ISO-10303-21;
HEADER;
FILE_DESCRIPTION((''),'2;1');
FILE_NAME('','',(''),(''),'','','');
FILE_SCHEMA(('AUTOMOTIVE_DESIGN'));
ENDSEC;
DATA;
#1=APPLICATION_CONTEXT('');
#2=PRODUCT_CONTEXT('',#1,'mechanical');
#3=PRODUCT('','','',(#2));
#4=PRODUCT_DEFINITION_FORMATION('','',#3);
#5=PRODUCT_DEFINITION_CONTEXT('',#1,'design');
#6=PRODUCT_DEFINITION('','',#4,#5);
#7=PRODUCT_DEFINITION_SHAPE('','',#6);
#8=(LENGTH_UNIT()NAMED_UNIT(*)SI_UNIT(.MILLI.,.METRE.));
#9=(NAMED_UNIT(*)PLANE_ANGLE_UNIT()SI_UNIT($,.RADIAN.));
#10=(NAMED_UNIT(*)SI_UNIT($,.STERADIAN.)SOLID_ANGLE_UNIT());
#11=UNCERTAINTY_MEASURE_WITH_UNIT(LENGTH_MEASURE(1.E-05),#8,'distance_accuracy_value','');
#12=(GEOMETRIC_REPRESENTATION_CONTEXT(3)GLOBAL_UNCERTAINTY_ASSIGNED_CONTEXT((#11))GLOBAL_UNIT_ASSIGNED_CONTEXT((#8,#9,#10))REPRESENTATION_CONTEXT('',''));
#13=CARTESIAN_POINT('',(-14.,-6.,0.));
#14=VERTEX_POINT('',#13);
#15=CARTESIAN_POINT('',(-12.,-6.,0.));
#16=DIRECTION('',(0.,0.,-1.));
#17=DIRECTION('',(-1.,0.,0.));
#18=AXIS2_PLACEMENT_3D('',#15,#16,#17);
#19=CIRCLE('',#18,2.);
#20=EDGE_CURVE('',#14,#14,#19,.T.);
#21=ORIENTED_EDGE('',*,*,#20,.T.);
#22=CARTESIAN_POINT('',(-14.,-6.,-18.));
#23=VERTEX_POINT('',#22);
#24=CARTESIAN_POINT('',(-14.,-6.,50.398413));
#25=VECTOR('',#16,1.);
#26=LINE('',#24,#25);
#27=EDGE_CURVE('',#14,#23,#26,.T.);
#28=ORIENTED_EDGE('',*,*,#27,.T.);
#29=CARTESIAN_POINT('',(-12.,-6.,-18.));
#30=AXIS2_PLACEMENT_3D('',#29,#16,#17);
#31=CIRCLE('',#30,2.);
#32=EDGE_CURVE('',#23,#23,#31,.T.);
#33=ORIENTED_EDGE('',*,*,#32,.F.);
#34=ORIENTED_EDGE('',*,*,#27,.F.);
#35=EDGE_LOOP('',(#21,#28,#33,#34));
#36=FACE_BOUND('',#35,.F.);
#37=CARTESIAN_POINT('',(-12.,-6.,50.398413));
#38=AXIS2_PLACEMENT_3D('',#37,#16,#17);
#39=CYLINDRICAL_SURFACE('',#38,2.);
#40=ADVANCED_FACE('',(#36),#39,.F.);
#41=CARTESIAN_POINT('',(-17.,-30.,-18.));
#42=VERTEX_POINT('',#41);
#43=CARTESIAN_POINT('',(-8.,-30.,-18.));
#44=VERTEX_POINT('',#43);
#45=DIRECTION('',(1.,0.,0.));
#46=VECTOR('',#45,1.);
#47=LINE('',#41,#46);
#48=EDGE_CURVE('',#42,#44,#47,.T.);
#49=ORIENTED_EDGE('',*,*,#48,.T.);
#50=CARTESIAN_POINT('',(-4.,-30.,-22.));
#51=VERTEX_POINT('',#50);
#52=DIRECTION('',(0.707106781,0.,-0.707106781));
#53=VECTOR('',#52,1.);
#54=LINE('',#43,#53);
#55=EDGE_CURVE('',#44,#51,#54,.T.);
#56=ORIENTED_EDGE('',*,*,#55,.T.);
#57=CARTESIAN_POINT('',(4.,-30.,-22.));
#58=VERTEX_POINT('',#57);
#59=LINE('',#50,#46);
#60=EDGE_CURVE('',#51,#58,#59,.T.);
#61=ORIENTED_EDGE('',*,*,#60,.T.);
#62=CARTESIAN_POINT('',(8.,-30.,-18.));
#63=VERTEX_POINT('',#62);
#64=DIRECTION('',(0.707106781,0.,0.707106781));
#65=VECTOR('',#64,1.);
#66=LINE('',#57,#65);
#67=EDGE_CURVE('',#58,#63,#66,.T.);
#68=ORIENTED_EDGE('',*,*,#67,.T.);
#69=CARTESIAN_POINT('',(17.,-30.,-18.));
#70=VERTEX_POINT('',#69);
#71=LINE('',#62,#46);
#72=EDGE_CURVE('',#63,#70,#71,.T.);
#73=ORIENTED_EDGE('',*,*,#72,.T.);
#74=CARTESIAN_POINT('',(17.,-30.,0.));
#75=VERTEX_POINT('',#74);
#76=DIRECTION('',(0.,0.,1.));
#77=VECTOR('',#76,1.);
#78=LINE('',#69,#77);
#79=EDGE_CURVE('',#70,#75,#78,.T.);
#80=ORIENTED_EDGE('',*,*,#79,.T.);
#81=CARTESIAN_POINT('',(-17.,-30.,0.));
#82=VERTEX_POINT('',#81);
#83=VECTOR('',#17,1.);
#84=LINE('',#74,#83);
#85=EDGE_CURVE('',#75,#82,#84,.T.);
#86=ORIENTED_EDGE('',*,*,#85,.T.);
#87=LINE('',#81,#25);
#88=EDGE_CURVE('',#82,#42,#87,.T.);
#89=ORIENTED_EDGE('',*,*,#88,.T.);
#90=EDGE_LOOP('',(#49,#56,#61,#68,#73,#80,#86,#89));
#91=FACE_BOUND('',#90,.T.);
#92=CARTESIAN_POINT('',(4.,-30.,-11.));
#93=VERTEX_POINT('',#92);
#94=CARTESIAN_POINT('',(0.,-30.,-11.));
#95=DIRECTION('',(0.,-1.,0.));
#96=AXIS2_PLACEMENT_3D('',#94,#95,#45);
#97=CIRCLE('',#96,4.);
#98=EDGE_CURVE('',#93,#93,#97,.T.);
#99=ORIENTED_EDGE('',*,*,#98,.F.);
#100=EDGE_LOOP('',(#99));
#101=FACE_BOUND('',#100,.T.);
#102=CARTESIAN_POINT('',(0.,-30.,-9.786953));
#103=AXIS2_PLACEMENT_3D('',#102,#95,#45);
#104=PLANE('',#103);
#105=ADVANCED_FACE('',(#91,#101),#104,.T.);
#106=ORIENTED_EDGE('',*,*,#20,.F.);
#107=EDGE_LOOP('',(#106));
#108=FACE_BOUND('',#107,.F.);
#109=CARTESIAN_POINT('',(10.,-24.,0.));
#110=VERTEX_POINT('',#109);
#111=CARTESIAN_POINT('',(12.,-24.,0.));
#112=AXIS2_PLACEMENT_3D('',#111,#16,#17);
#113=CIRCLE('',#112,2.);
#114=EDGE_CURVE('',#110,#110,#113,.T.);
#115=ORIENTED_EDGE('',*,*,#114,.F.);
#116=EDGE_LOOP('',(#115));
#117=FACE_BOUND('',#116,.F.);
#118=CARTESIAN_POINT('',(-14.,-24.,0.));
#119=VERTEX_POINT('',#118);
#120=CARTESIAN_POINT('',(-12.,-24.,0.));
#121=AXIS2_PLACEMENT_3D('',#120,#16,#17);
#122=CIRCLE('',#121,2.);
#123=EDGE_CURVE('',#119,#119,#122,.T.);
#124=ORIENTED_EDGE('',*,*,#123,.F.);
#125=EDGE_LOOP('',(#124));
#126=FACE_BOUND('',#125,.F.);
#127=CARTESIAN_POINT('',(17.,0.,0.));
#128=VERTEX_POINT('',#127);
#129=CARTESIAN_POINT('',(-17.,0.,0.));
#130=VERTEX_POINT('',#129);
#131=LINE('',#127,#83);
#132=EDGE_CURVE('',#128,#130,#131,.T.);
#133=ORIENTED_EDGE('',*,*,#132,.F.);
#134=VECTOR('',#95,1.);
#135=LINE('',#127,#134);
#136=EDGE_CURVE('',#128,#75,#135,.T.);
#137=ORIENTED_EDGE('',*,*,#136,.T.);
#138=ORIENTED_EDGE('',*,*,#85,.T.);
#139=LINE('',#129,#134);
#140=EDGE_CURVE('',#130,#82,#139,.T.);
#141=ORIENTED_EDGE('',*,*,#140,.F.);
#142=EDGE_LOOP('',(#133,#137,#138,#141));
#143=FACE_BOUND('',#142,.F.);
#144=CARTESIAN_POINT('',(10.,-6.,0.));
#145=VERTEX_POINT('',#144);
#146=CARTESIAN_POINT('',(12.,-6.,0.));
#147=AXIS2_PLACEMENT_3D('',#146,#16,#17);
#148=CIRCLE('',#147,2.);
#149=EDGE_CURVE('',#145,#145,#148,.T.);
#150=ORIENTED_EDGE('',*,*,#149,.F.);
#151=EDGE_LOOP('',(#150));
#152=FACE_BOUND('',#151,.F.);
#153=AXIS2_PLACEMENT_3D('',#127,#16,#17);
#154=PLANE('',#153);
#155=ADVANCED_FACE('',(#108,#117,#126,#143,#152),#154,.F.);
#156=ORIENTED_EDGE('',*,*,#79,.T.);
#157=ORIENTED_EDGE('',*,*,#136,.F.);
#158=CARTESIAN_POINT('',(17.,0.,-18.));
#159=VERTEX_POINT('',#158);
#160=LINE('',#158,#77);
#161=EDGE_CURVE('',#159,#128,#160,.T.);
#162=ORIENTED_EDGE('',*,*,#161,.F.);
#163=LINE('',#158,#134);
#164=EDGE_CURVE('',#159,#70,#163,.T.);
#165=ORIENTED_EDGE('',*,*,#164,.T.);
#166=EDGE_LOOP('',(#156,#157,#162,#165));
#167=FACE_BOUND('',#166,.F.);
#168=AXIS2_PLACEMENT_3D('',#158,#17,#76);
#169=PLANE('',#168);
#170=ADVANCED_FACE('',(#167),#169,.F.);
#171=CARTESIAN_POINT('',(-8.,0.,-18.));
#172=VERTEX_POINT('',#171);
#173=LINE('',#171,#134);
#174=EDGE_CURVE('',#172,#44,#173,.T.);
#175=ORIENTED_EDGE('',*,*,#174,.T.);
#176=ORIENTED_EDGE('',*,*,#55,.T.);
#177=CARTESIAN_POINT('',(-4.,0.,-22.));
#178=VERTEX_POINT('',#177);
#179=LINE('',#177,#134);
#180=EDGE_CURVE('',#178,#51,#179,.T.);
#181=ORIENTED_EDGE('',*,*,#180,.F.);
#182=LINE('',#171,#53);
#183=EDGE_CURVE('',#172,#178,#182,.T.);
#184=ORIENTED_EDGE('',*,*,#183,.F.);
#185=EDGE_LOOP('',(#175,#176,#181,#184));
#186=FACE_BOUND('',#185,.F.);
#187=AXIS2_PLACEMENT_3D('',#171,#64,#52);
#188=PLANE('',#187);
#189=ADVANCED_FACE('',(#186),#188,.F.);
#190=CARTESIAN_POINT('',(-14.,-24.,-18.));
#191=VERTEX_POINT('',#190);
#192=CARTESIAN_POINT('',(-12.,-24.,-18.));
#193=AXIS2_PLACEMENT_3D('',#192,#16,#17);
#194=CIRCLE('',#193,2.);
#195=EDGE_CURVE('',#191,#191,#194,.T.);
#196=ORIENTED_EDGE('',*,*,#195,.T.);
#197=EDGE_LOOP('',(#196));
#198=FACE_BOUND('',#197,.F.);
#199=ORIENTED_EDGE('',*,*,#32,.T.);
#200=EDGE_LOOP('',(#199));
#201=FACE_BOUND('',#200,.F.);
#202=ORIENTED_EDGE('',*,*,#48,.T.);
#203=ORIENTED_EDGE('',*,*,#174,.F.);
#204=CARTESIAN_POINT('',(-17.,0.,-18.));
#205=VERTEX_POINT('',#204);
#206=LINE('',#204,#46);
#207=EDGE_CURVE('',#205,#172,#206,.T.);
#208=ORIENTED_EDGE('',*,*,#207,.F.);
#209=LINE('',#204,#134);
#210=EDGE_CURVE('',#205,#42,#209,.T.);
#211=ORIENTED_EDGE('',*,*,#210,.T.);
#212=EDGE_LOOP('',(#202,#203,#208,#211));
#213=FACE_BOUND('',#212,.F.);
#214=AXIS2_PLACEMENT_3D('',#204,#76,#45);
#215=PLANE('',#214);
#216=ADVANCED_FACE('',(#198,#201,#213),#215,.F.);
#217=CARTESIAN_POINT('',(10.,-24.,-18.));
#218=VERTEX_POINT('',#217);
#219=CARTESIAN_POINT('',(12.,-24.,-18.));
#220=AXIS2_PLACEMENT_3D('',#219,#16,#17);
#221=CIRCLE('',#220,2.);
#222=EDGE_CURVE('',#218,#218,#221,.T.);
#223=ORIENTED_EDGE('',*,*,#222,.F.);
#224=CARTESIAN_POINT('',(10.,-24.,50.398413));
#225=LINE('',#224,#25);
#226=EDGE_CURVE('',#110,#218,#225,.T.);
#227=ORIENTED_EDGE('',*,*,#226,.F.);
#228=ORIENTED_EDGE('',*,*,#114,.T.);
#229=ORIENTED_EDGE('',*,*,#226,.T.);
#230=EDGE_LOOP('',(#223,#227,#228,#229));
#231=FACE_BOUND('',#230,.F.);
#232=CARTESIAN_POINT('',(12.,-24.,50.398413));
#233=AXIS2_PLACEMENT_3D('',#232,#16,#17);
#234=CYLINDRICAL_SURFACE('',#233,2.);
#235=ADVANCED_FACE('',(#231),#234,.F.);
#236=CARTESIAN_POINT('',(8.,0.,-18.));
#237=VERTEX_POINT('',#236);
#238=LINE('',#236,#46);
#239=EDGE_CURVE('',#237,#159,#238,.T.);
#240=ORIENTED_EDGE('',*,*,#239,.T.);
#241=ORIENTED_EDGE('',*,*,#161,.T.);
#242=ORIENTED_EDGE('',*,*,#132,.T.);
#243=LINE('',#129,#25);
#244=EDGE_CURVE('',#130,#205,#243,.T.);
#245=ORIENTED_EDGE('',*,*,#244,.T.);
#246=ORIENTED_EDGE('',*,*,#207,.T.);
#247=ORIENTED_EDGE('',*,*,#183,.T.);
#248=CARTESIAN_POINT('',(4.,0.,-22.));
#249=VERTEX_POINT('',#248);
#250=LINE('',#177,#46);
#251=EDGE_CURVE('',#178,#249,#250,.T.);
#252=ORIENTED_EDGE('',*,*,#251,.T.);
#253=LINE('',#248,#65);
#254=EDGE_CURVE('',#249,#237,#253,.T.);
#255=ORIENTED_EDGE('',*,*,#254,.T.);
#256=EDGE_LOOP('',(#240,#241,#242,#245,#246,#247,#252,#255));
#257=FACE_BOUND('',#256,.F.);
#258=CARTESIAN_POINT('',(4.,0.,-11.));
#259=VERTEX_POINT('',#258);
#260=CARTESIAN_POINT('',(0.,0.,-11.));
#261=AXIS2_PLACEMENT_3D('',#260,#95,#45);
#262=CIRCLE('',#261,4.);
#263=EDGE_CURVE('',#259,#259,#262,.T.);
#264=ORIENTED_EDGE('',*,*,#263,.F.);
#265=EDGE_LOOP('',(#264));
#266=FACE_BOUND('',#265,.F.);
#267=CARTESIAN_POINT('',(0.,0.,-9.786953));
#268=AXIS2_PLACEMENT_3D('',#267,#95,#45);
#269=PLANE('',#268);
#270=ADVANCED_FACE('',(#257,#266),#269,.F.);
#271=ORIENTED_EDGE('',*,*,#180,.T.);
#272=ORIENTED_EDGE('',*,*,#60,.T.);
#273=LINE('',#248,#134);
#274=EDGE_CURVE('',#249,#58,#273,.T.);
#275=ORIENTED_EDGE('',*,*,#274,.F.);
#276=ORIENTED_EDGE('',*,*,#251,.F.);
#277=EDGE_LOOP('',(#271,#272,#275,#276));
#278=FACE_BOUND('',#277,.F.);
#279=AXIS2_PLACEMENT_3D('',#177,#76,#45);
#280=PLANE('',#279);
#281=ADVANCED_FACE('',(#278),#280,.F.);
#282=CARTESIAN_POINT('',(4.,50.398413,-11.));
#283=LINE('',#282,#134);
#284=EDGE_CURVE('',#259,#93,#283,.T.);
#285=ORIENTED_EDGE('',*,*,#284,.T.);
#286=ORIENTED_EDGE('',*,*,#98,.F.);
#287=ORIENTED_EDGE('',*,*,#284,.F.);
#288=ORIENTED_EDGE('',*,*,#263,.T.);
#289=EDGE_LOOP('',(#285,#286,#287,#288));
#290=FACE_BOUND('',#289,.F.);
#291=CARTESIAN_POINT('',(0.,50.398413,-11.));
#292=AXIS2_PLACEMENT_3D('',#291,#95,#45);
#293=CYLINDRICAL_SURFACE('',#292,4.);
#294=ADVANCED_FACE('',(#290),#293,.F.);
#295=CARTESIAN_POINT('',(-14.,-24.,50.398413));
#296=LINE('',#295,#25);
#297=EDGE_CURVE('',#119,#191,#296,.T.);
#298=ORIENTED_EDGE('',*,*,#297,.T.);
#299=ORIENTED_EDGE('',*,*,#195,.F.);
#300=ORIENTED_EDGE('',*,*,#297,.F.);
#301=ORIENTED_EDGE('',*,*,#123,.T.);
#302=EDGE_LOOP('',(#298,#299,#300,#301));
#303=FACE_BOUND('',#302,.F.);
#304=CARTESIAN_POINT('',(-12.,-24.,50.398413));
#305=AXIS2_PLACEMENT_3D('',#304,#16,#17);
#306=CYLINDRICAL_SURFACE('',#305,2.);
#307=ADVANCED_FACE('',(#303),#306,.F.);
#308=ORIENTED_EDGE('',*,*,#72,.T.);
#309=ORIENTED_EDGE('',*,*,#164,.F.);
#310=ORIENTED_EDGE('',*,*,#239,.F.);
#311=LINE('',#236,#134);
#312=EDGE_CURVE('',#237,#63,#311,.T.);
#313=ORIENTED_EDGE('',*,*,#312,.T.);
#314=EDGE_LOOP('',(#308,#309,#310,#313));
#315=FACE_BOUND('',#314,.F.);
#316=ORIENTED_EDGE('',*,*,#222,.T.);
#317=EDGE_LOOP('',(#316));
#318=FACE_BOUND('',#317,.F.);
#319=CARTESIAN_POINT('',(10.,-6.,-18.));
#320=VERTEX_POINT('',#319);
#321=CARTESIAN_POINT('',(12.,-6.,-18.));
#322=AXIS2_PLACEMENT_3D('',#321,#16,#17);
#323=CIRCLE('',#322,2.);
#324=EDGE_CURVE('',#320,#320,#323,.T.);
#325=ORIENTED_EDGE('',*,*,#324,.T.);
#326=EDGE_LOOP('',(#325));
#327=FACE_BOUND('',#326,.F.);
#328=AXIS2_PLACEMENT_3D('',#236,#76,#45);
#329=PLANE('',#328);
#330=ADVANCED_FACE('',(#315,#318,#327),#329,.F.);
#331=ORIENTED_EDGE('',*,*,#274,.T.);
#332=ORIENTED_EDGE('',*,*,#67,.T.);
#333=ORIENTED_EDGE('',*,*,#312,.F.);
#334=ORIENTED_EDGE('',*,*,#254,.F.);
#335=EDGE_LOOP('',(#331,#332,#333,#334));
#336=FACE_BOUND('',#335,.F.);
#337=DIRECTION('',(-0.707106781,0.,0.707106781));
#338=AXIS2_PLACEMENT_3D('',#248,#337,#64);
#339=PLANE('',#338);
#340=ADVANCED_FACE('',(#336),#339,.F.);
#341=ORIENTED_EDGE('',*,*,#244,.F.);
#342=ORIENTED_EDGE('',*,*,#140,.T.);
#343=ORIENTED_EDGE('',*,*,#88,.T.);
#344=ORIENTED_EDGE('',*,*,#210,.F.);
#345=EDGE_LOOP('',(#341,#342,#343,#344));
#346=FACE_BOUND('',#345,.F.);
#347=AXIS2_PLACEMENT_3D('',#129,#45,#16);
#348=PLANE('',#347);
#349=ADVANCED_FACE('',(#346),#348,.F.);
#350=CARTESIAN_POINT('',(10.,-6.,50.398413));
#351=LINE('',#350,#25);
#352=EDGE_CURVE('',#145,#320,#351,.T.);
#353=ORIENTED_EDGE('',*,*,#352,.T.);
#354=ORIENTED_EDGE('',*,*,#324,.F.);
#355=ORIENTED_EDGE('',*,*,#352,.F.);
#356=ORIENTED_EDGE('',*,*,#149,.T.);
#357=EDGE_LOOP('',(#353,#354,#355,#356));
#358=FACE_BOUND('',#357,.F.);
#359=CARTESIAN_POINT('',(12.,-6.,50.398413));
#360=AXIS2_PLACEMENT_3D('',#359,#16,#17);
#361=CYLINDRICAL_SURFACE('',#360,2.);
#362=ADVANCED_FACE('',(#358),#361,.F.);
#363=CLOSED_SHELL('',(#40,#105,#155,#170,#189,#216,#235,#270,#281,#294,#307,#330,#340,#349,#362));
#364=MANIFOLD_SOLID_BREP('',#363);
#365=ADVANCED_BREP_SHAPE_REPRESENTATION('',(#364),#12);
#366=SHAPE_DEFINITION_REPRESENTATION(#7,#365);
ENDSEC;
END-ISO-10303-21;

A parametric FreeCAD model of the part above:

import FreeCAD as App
import Part
import Sketcher
from FreeCAD import Vector

doc = App.newDocument("Part")
body = doc.addObject("PartDesign::Body", "Body")

# Sketch on XZ plane
sketch1 = body.newObject("Sketcher::SketchObject", "Sketch")
sketch1.AttachmentSupport = (doc.getObject("XZ_Plane"), [""])
sketch1.MapMode = "FlatFace"
sketch1.addGeometry([
    Part.LineSegment(Vector(17, 0, 0), Vector(-17, 0, 0)),  # 0
    Part.LineSegment(Vector(-17, 0, 0), Vector(-17, -18, 0)),  # 1
    Part.LineSegment(Vector(-17, -18, 0), Vector(-8, -18, 0)),  # 2
    Part.LineSegment(Vector(-8, -18, 0), Vector(-4, -22, 0)),  # 3
    Part.LineSegment(Vector(-4, -22, 0), Vector(4, -22, 0)),  # 4
    Part.LineSegment(Vector(4, -22, 0), Vector(8, -18, 0)),  # 5
    Part.LineSegment(Vector(8, -18, 0), Vector(17, -18, 0)),  # 6
    Part.LineSegment(Vector(17, -18, 0), Vector(17, 0, 0)),  # 7
], False)
sketch1.addConstraint([
    Sketcher.Constraint("Coincident", 0, 2, 1, 1),
    Sketcher.Constraint("Coincident", 1, 2, 2, 1),
    Sketcher.Constraint("Coincident", 2, 2, 3, 1),
    Sketcher.Constraint("Coincident", 3, 2, 4, 1),
    Sketcher.Constraint("Coincident", 4, 2, 5, 1),
    Sketcher.Constraint("Coincident", 5, 2, 6, 1),
    Sketcher.Constraint("Coincident", 6, 2, 7, 1),
    Sketcher.Constraint("Coincident", 7, 2, 0, 1),
    Sketcher.Constraint("Horizontal", 0),
    Sketcher.Constraint("Vertical", 1),
    Sketcher.Constraint("Horizontal", 2),
    Sketcher.Constraint("Horizontal", 4),
    Sketcher.Constraint("Horizontal", 6),
    Sketcher.Constraint("Vertical", 7),
    Sketcher.Constraint("Symmetric", 0, 2, 7, 2, -1, 1),
    Sketcher.Constraint("Symmetric", 2, 2, 5, 2, -2),
    Sketcher.Constraint("Perpendicular", 3, 5),
    Sketcher.Constraint("Equal", 3, 5),
    Sketcher.Constraint("DistanceX", 0, 2, 0, 1, 34.0),
    Sketcher.Constraint("DistanceX", 2, 1, 2, 2, 9.0),
    Sketcher.Constraint("DistanceX", 4, 1, 4, 2, 8.0),
    Sketcher.Constraint("DistanceY", 1, 2, 1, 1, 18.0),
])
pad1 = body.newObject("PartDesign::Pad", "Pad")
pad1.Profile = sketch1
pad1.Length = 30

# Sketch on XZ plane
sketch2 = body.newObject("Sketcher::SketchObject", "Sketch001")
sketch2.AttachmentSupport = (doc.getObject("XZ_Plane"), [""])
sketch2.MapMode = "FlatFace"
sketch2.addGeometry(Part.Circle(Vector(0, -11, 0), Vector(0, 0, 1), 4), False)
sketch2.addConstraint([
    Sketcher.Constraint("PointOnObject", 0, 3, -2),
    Sketcher.Constraint("Diameter", 0, 8.0),
    Sketcher.Constraint("DistanceY", 0, 3, -1, 1, 11.0),
])
doc.recompute()
hole = body.newObject("PartDesign::Hole", "Hole")
hole.Profile = sketch2
hole.ThreadType = "None"
hole.Diameter = 8
hole.DepthType = "ThroughAll"
hole.Reversed = True

# Sketch on XY plane
sketch3 = body.newObject("Sketcher::SketchObject", "Sketch002")
sketch3.AttachmentSupport = (doc.getObject("XY_Plane"), [""])
sketch3.MapMode = "FlatFace"
sketch3.addGeometry([
    Part.Circle(Vector(12, -24, 0), Vector(0, 0, 1), 2),
    Part.Circle(Vector(12, -6, 0), Vector(0, 0, 1), 2),
    Part.Circle(Vector(-12, -6, 0), Vector(0, 0, 1), 2),
    Part.Circle(Vector(-12, -24, 0), Vector(0, 0, 1), 2),
], False)
sketch3.addConstraint([
    Sketcher.Constraint("Equal", 0, 1),
    Sketcher.Constraint("Equal", 1, 2),
    Sketcher.Constraint("Equal", 2, 3),
    Sketcher.Constraint("Symmetric", 1, 3, 2, 3, -2),
    Sketcher.Constraint("Symmetric", 0, 3, 3, 3, -2),
    Sketcher.Constraint("Vertical", 0, 3, 1, 3),
    Sketcher.Constraint("Diameter", 0, 4.0),
    Sketcher.Constraint("DistanceX", -1, 1, 0, 3, 12.0),
    Sketcher.Constraint("DistanceY", 0, 3, -1, 1, 24.0),
    Sketcher.Constraint("DistanceY", 1, 3, -1, 1, 6.0),
])
doc.recompute()
hole2 = body.newObject("PartDesign::Hole", "Hole001")
hole2.Profile = sketch3
hole2.ThreadType = "None"
hole2.Diameter = 4
hole2.DepthType = "ThroughAll"

doc.recompute()
